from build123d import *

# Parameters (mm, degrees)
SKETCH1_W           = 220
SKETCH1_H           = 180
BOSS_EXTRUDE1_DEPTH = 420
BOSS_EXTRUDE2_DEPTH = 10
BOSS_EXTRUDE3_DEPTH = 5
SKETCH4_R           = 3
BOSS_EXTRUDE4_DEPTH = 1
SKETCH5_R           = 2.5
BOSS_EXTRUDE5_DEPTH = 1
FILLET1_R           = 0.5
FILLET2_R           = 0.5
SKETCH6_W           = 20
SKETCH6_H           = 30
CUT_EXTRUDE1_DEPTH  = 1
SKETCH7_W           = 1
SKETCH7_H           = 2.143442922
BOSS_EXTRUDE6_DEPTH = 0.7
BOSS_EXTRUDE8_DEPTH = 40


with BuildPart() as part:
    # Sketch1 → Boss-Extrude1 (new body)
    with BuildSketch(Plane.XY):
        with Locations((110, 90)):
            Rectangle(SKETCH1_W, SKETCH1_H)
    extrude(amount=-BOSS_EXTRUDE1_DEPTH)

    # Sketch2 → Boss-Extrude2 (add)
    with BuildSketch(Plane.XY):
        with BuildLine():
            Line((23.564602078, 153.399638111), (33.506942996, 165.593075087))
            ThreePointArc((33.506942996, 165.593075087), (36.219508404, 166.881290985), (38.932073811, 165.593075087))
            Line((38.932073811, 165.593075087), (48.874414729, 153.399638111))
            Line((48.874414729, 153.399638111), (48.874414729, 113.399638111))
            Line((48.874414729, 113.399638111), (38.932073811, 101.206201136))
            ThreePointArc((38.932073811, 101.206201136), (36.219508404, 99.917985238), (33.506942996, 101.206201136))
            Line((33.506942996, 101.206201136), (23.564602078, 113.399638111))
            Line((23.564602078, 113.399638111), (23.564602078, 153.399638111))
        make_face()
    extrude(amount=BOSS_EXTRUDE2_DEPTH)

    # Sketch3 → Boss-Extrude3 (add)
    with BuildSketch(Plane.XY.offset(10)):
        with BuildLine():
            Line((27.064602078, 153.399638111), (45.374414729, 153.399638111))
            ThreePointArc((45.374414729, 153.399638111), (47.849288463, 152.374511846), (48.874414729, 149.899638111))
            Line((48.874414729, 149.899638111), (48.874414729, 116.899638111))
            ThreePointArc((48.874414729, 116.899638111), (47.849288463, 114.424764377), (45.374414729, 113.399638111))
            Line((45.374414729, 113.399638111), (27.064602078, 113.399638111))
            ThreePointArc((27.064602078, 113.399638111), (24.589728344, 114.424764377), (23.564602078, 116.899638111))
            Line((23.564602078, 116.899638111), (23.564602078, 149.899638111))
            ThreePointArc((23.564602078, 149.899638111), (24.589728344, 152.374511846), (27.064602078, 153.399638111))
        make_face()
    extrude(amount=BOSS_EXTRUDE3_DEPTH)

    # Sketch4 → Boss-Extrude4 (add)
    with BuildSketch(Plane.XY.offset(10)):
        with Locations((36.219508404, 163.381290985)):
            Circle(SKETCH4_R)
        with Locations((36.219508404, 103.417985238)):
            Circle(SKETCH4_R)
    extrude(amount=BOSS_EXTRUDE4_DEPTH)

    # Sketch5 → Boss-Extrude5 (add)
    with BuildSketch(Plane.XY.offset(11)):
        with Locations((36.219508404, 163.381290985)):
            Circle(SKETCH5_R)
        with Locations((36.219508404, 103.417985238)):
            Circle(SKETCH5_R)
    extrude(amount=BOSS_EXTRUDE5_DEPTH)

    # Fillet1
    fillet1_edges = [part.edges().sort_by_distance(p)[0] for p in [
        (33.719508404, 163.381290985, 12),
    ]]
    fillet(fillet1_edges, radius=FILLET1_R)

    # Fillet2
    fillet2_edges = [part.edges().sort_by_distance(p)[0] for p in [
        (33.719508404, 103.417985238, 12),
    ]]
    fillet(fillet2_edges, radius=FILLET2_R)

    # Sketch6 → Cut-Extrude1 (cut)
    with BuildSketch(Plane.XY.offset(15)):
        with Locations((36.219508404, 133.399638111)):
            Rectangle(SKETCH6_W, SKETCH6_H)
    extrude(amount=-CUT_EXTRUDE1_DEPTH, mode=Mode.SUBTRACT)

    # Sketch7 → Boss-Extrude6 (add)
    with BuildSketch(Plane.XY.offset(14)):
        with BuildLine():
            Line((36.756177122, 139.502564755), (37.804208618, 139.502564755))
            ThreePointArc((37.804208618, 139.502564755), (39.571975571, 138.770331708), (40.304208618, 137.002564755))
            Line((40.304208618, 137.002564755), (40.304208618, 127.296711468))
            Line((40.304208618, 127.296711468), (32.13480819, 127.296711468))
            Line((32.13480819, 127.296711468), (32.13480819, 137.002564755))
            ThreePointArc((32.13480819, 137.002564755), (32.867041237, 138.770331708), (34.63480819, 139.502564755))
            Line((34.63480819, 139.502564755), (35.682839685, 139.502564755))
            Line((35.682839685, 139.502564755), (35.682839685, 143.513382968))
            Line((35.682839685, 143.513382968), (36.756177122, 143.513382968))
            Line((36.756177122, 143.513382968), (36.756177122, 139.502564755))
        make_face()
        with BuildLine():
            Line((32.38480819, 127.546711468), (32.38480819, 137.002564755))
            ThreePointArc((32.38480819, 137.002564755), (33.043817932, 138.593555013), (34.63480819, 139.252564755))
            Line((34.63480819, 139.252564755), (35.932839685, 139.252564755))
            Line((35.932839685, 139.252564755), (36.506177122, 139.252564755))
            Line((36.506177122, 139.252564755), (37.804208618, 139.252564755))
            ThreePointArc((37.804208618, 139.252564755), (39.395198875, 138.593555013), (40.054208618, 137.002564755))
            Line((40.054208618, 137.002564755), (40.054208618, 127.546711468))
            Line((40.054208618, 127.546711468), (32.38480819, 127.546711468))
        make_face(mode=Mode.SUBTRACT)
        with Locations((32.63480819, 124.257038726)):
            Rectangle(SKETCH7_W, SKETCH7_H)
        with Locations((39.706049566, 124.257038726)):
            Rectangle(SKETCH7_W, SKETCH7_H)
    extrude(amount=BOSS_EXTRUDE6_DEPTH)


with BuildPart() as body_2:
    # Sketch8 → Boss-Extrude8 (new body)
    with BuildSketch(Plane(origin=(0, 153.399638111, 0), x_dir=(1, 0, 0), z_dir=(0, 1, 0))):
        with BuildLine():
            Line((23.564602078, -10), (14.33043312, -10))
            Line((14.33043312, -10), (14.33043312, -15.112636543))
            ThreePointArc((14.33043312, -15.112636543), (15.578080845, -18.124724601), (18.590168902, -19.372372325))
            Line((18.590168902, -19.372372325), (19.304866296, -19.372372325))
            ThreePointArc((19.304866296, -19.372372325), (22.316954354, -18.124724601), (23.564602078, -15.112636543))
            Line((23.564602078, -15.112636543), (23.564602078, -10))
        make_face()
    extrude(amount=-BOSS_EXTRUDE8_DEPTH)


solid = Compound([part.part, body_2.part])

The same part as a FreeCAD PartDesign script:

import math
import FreeCAD as App
import Part
import Sketcher
from FreeCAD import Vector
Q = App.Units.Quantity


def edges_at(feature, points):
    """Names of the edges that pass closest to the given points."""
    edges = feature.Shape.Edges
    near = lambda p: min(range(len(edges)), key=lambda i: edges[i].distToShape(Part.Vertex(*p))[0])
    return sorted({f"Edge{near(p) + 1}" for p in points})

doc = App.newDocument("Part")
params = doc.addObject("Spreadsheet::Sheet", "Params")
for row, (alias, value) in enumerate([
    ("sketch1_width", "220 mm"),
    ("sketch1_height", "180 mm"),
    ("pad1_length", "420 mm"),
    ("sketch2_radius", "3.5 mm"),
    ("sketch2_height", "40 mm"),
    ("pad2_length", "10 mm"),
    ("sketch3_radius", "3.5 mm"),
    ("sketch3_height", "33 mm"),
    ("pad3_length", "5 mm"),
    ("sketch4_diameter", "6 mm"),
    ("pad4_length", "1 mm"),
    ("sketch5_diameter", "5 mm"),
    ("pad5_length", "1 mm"),
    ("fillet_radius", "0.5 mm"),
    ("fillet2_radius", "0.5 mm"),
    ("sketch6_width", "20 mm"),
    ("sketch6_height", "30 mm"),
    ("pocket1_length", "1 mm"),
    ("sketch7_radius", "2.5 mm"),
    ("sketch7_width", "1 mm"),
    ("sketch7_radius2", "2.25 mm"),
    ("pad6_length", "0.7 mm"),
    ("pad7_length", "40 mm"),
], start=1):
    params.set(f"A{row}", alias)
    params.set(f"B{row}", "=" + value)
    params.setAlias(f"B{row}", alias)

body = doc.addObject("PartDesign::Body", "Body")

sketch1 = body.newObject("Sketcher::SketchObject", "Sketch")
sketch1.AttachmentSupport = (doc.getObject("XY_Plane"), [""])
sketch1.MapMode = "FlatFace"
sketch1.addGeometry(Part.LineSegment(Vector(0, 180, 0), Vector(0, 0, 0)), False)
sketch1.addGeometry(Part.LineSegment(Vector(0, 0, 0), Vector(220, 0, 0)), False)
sketch1.addGeometry(Part.LineSegment(Vector(220, 0, 0), Vector(220, 180, 0)), False)
sketch1.addGeometry(Part.LineSegment(Vector(220, 180, 0), Vector(0, 180, 0)), False)
sketch1.addConstraint(Sketcher.Constraint("Coincident", 0, 2, 1, 1))
sketch1.addConstraint(Sketcher.Constraint("Coincident", 1, 2, 2, 1))
sketch1.addConstraint(Sketcher.Constraint("Coincident", 2, 2, 3, 1))
sketch1.addConstraint(Sketcher.Constraint("Coincident", 3, 2, 0, 1))
sketch1.addConstraint(Sketcher.Constraint("Vertical", 0))
sketch1.addConstraint(Sketcher.Constraint("Horizontal", 1))
sketch1.addConstraint(Sketcher.Constraint("Vertical", 2))
sketch1.addConstraint(Sketcher.Constraint("Horizontal", 3))
sketch1.addConstraint(Sketcher.Constraint("Coincident", 0, 2, -1, 1))
sketch1.addConstraint(Sketcher.Constraint("DistanceX", 1, 1, 1, 2, Q("220 mm")))
sketch1.addConstraint(Sketcher.Constraint("DistanceY", 0, 2, 0, 1, Q("180 mm")))
sketch1.setExpression("Constraints[9]", "Params.sketch1_width")
sketch1.setExpression("Constraints[10]", "Params.sketch1_height")
pad1 = body.newObject("PartDesign::Pad", "Pad")
pad1.Profile = sketch1
pad1.setExpression("Length", "Params.pad1_length")
pad1.Reversed = True

sketch2 = body.newObject("Sketcher::SketchObject", "Sketch001")
sketch2.AttachmentSupport = (doc.getObject("XY_Plane"), [""])
sketch2.MapMode = "FlatFace"
sketch2.addGeometry(Part.LineSegment(Vector(33.506943, 165.593075, 0), Vector(23.564602, 153.399638, 0)), False)
sketch2.addGeometry(Part.LineSegment(Vector(23.564602, 153.399638, 0), Vector(23.564602, 113.399638, 0)), False)
sketch2.addGeometry(Part.LineSegment(Vector(23.564602, 113.399638, 0), Vector(33.506943, 101.206201, 0)), False)
sketch2.addGeometry(Part.ArcOfCircle(Part.Circle(Vector(36.219508, 103.417985, 0), Vector(0, 0, 1), 3.5), math.radians(-140.806727), math.radians(-39.193273)), False)
sketch2.addGeometry(Part.LineSegment(Vector(38.932074, 101.206201, 0), Vector(48.874415, 113.399638, 0)), False)
sketch2.addGeometry(Part.LineSegment(Vector(48.874415, 113.399638, 0), Vector(48.874415, 153.399638, 0)), False)
sketch2.addGeometry(Part.LineSegment(Vector(48.874415, 153.399638, 0), Vector(38.932074, 165.593075, 0)), False)
sketch2.addGeometry(Part.ArcOfCircle(Part.Circle(Vector(36.219508, 163.381291, 0), Vector(0, 0, 1), 3.5), math.radians(39.193273), math.radians(140.806727)), False)
sketch2.addConstraint(Sketcher.Constraint("Coincident", 0, 2, 1, 1))
sketch2.addConstraint(Sketcher.Constraint("Coincident", 1, 2, 2, 1))
sketch2.addConstraint(Sketcher.Constraint("Tangent", 2, 2, 3, 1))
sketch2.addConstraint(Sketcher.Constraint("Tangent", 3, 2, 4, 1))
sketch2.addConstraint(Sketcher.Constraint("Coincident", 4, 2, 5, 1))
sketch2.addConstraint(Sketcher.Constraint("Coincident", 5, 2, 6, 1))
sketch2.addConstraint(Sketcher.Constraint("Tangent", 6, 2, 7, 1))
sketch2.addConstraint(Sketcher.Constraint("Tangent", 7, 2, 0, 1))
sketch2.addConstraint(Sketcher.Constraint("Vertical", 1))
sketch2.addConstraint(Sketcher.Constraint("Vertical", 5))
sketch2.addConstraint(Sketcher.Constraint("Equal", 3, 7))
sketch2.addConstraint(Sketcher.Constraint("Parallel", 0, 4))
sketch2.addConstraint(Sketcher.Constraint("Parallel", 2, 6))
sketch2.addConstraint(Sketcher.Constraint("Horizontal", 2, 2, 3, 2))
sketch2.addConstraint(Sketcher.Constraint("Horizontal", 1, 2, 4, 2))
sketch2.addConstraint(Sketcher.Constraint("Horizontal", 0, 2, 5, 2))
sketch2.addConstraint(Sketcher.Constraint("Radius", 3, Q("3.5 mm")))
sketch2.addConstraint(Sketcher.Constraint("DistanceY", 1, 2, 1, 1, Q("40 mm")))
sketch2.addConstraint(Sketcher.Constraint("DistanceY", -1, 1, 2, 2, Q("101.206201 mm")))
sketch2.addConstraint(Sketcher.Constraint("DistanceX", -1, 1, 3, 3, Q("36.219508 mm")))
sketch2.addConstraint(Sketcher.Constraint("DistanceY", -1, 1, 7, 3, Q("163.381291 mm")))
sketch2.addConstraint(Sketcher.Constraint("DistanceY", -1, 1, 0, 2, Q("153.399638 mm")))
sketch2.setExpression("Constraints[16]", "Params.sketch2_radius")
sketch2.setExpression("Constraints[17]", "Params.sketch2_height")
pad2 = body.newObject("PartDesign::Pad", "Pad001")
pad2.Profile = sketch2
pad2.setExpression("Length", "Params.pad2_length")

sketch3 = body.newObject("Sketcher::SketchObject", "Sketch002")
sketch3.AttachmentSupport = (doc.getObject("XY_Plane"), [""])
sketch3.MapMode = "FlatFace"
sketch3.AttachmentOffset = App.Placement(Vector(0, 0, 10), App.Rotation())
sketch3.addGeometry(Part.LineSegment(Vector(45.374415, 153.399638, 0), Vector(27.064602, 153.399638, 0)), False)
sketch3.addGeometry(Part.ArcOfCircle(Part.Circle(Vector(27.064602, 149.899638, 0), Vector(0, 0, 1), 3.5), math.radians(90), math.radians(180)), False)
sketch3.addGeometry(Part.LineSegment(Vector(23.564602, 149.899638, 0), Vector(23.564602, 116.899638, 0)), False)
sketch3.addGeometry(Part.ArcOfCircle(Part.Circle(Vector(27.064602, 116.899638, 0), Vector(0, 0, 1), 3.5), math.radians(-180), math.radians(-90)), False)
sketch3.addGeometry(Part.LineSegment(Vector(27.064602, 113.399638, 0), Vector(45.374415, 113.399638, 0)), False)
sketch3.addGeometry(Part.ArcOfCircle(Part.Circle(Vector(45.374415, 116.899638, 0), Vector(0, 0, 1), 3.5), math.radians(-90), math.radians(0)), False)
sketch3.addGeometry(Part.LineSegment(Vector(48.874415, 116.899638, 0), Vector(48.874415, 149.899638, 0)), False)
sketch3.addGeometry(Part.ArcOfCircle(Part.Circle(Vector(45.374415, 149.899638, 0), Vector(0, 0, 1), 3.5), math.radians(0), math.radians(90)), False)
sketch3.addConstraint(Sketcher.Constraint("Tangent", 0, 2, 1, 1))
sketch3.addConstraint(Sketcher.Constraint("Tangent", 1, 2, 2, 1))
sketch3.addConstraint(Sketcher.Constraint("Tangent", 2, 2, 3, 1))
sketch3.addConstraint(Sketcher.Constraint("Tangent", 3, 2, 4, 1))
sketch3.addConstraint(Sketcher.Constraint("Tangent", 4, 2, 5, 1))
sketch3.addConstraint(Sketcher.Constraint("Tangent", 5, 2, 6, 1))
sketch3.addConstraint(Sketcher.Constraint("Tangent", 6, 2, 7, 1))
sketch3.addConstraint(Sketcher.Constraint("Tangent", 7, 2, 0, 1))
sketch3.addConstraint(Sketcher.Constraint("Horizontal", 0))
sketch3.addConstraint(Sketcher.Constraint("Vertical", 2))
sketch3.addConstraint(Sketcher.Constraint("Horizontal", 4))
sketch3.addConstraint(Sketcher.Constraint("Vertical", 6))
sketch3.addConstraint(Sketcher.Constraint("Equal", 1, 3))
sketch3.addConstraint(Sketcher.Constraint("Equal", 3, 5))
sketch3.addConstraint(Sketcher.Constraint("Equal", 5, 7))
sketch3.addConstraint(Sketcher.Constraint("Radius", 1, Q("3.5 mm")))
sketch3.addConstraint(Sketcher.Constraint("DistanceY", 2, 2, 2, 1, Q("33 mm")))
sketch3.addConstraint(Sketcher.Constraint("DistanceX", 0, 2, 0, 1, Q("18.309813 mm")))
sketch3.addConstraint(Sketcher.Constraint("DistanceY", -1, 1, 1, 3, Q("149.899638 mm")))
sketch3.addConstraint(Sketcher.Constraint("DistanceX", -1, 1, 1, 3, Q("27.064602 mm")))
sketch3.setExpression("Constraints[15]", "Params.sketch3_radius")
sketch3.setExpression("Constraints[16]", "Params.sketch3_height")
pad3 = body.newObject("PartDesign::Pad", "Pad002")
pad3.Profile = sketch3
pad3.setExpression("Length", "Params.pad3_length")

sketch4 = body.newObject("Sketcher::SketchObject", "Sketch003")
sketch4.AttachmentSupport = (doc.getObject("XY_Plane"), [""])
sketch4.MapMode = "FlatFace"
sketch4.AttachmentOffset = App.Placement(Vector(0, 0, 10), App.Rotation())
sketch4.addGeometry(Part.Circle(Vector(36.219508, 163.381291, 0), Vector(0, 0, 1), 3), False)
sketch4.addGeometry(Part.Circle(Vector(36.219508, 103.417985, 0), Vector(0, 0, 1), 3), False)
sketch4.addConstraint(Sketcher.Constraint("Equal", 0, 1))
sketch4.addConstraint(Sketcher.Constraint("Vertical", 0, 3, 1, 3))
sketch4.addConstraint(Sketcher.Constraint("Diameter", 0, Q("6 mm")))
sketch4.addConstraint(Sketcher.Constraint("DistanceX", -1, 1, 0, 3, Q("36.219508 mm")))
sketch4.addConstraint(Sketcher.Constraint("DistanceY", -1, 1, 0, 3, Q("163.381291 mm")))
sketch4.addConstraint(Sketcher.Constraint("DistanceY", -1, 1, 1, 3, Q("103.417985 mm")))
sketch4.setExpression("Constraints[2]", "Params.sketch4_diameter")
pad4 = body.newObject("PartDesign::Pad", "Pad003")
pad4.Profile = sketch4
pad4.setExpression("Length", "Params.pad4_length")

sketch5 = body.newObject("Sketcher::SketchObject", "Sketch004")
sketch5.AttachmentSupport = (doc.getObject("XY_Plane"), [""])
sketch5.MapMode = "FlatFace"
sketch5.AttachmentOffset = App.Placement(Vector(0, 0, 11), App.Rotation())
sketch5.addGeometry(Part.Circle(Vector(36.219508, 163.381291, 0), Vector(0, 0, 1), 2.5), False)
sketch5.addGeometry(Part.Circle(Vector(36.219508, 103.417985, 0), Vector(0, 0, 1), 2.5), False)
sketch5.addConstraint(Sketcher.Constraint("Equal", 0, 1))
sketch5.addConstraint(Sketcher.Constraint("Vertical", 0, 3, 1, 3))
sketch5.addConstraint(Sketcher.Constraint("Diameter", 0, Q("5 mm")))
sketch5.addConstraint(Sketcher.Constraint("DistanceX", -1, 1, 0, 3, Q("36.219508 mm")))
sketch5.addConstraint(Sketcher.Constraint("DistanceY", -1, 1, 0, 3, Q("163.381291 mm")))
sketch5.addConstraint(Sketcher.Constraint("DistanceY", -1, 1, 1, 3, Q("103.417985 mm")))
sketch5.setExpression("Constraints[2]", "Params.sketch5_diameter")
pad5 = body.newObject("PartDesign::Pad", "Pad004")
pad5.Profile = sketch5
pad5.setExpression("Length", "Params.pad5_length")
doc.recompute()

fillet = body.newObject("PartDesign::Fillet", "Fillet")
fillet.Base = (pad5, edges_at(pad5, [(33.72, 163.381, 12)]))
fillet.setExpression("Radius", "Params.fillet_radius")
doc.recompute()

fillet2 = body.newObject("PartDesign::Fillet", "Fillet001")
fillet2.Base = (fillet, edges_at(fillet, [(33.72, 103.418, 12)]))
fillet2.setExpression("Radius", "Params.fillet2_radius")

sketch6 = body.newObject("Sketcher::SketchObject", "Sketch005")
sketch6.AttachmentSupport = (doc.getObject("XY_Plane"), [""])
sketch6.MapMode = "FlatFace"
sketch6.AttachmentOffset = App.Placement(Vector(0, 0, 15), App.Rotation())
sketch6.addGeometry(Part.LineSegment(Vector(26.219508, 148.399638, 0), Vector(26.219508, 118.399638, 0)), False)
sketch6.addGeometry(Part.LineSegment(Vector(26.219508, 118.399638, 0), Vector(46.219508, 118.399638, 0)), False)
sketch6.addGeometry(Part.LineSegment(Vector(46.219508, 118.399638, 0), Vector(46.219508, 148.399638, 0)), False)
sketch6.addGeometry(Part.LineSegment(Vector(46.219508, 148.399638, 0), Vector(26.219508, 148.399638, 0)), False)
sketch6.addConstraint(Sketcher.Constraint("Coincident", 0, 2, 1, 1))
sketch6.addConstraint(Sketcher.Constraint("Coincident", 1, 2, 2, 1))
sketch6.addConstraint(Sketcher.Constraint("Coincident", 2, 2, 3, 1))
sketch6.addConstraint(Sketcher.Constraint("Coincident", 3, 2, 0, 1))
sketch6.addConstraint(Sketcher.Constraint("Vertical", 0))
sketch6.addConstraint(Sketcher.Constraint("Horizontal", 1))
sketch6.addConstraint(Sketcher.Constraint("Vertical", 2))
sketch6.addConstraint(Sketcher.Constraint("Horizontal", 3))
sketch6.addConstraint(Sketcher.Constraint("DistanceX", 1, 1, 1, 2, Q("20 mm")))
sketch6.addConstraint(Sketcher.Constraint("DistanceY", 0, 2, 0, 1, Q("30 mm")))
sketch6.addConstraint(Sketcher.Constraint("DistanceX", -1, 1, 0, 2, Q("26.219508 mm")))
sketch6.addConstraint(Sketcher.Constraint("DistanceY", -1, 1, 0, 2, Q("118.399638 mm")))
sketch6.setExpression("Constraints[8]", "Params.sketch6_width")
sketch6.setExpression("Constraints[9]", "Params.sketch6_height")
pocket1 = body.newObject("PartDesign::Pocket", "Pocket")
pocket1.Profile = sketch6
pocket1.setExpression("Length", "Params.pocket1_length")

sketch7 = body.newObject("Sketcher::SketchObject", "Sketch006")
sketch7.AttachmentSupport = (doc.getObject("XY_Plane"), [""])
sketch7.MapMode = "FlatFace"
sketch7.AttachmentOffset = App.Placement(Vector(0, 0, 14), App.Rotation())
sketch7.addGeometry(Part.LineSegment(Vector(37.804209, 139.502565, 0), Vector(36.756177, 139.502565, 0)), False)
sketch7.addGeometry(Part.LineSegment(Vector(36.756177, 139.502565, 0), Vector(36.756177, 143.513383, 0)), False)
sketch7.addGeometry(Part.LineSegment(Vector(36.756177, 143.513383, 0), Vector(35.68284, 143.513383, 0)), False)
sketch7.addGeometry(Part.LineSegment(Vector(35.68284, 143.513383, 0), Vector(35.68284, 139.502565, 0)), False)
sketch7.addGeometry(Part.LineSegment(Vector(35.68284, 139.502565, 0), Vector(34.634808, 139.502565, 0)), False)
sketch7.addGeometry(Part.ArcOfCircle(Part.Circle(Vector(34.634808, 137.002565, 0), Vector(0, 0, 1), 2.5), math.radians(90), math.radians(180)), False)
sketch7.addGeometry(Part.LineSegment(Vector(32.134808, 137.002565, 0), Vector(32.134808, 127.296711, 0)), False)
sketch7.addGeometry(Part.LineSegment(Vector(32.134808, 127.296711, 0), Vector(40.304209, 127.296711, 0)), False)
sketch7.addGeometry(Part.LineSegment(Vector(40.304209, 127.296711, 0), Vector(40.304209, 137.002565, 0)), False)
sketch7.addGeometry(Part.ArcOfCircle(Part.Circle(Vector(37.804209, 137.002565, 0), Vector(0, 0, 1), 2.5), math.radians(0), math.radians(90)), False)
sketch7.addGeometry(Part.LineSegment(Vector(32.384808, 127.546711, 0), Vector(32.384808, 137.002565, 0)), False)
sketch7.addGeometry(Part.ArcOfCircle(Part.Circle(Vector(34.634808, 137.002565, 0), Vector(0, 0, 1), 2.25), math.radians(90), math.radians(180)), False)
sketch7.addGeometry(Part.LineSegment(Vector(34.634808, 139.252565, 0), Vector(37.804209, 139.252565, 0)), False)
sketch7.addGeometry(Part.ArcOfCircle(Part.Circle(Vector(37.804209, 137.002565, 0), Vector(0, 0, 1), 2.25), math.radians(0), math.radians(90)), False)
sketch7.addGeometry(Part.LineSegment(Vector(40.054209, 137.002565, 0), Vector(40.054209, 127.546711, 0)), False)
sketch7.addGeometry(Part.LineSegment(Vector(40.054209, 127.546711, 0), Vector(32.384808, 127.546711, 0)), False)
sketch7.addGeometry(Part.LineSegment(Vector(32.134808, 125.32876, 0), Vector(32.134808, 123.185317, 0)), False)
sketch7.addGeometry(Part.LineSegment(Vector(32.134808, 123.185317, 0), Vector(33.134808, 123.185317, 0)), False)
sketch7.addGeometry(Part.LineSegment(Vector(33.134808, 123.185317, 0), Vector(33.134808, 125.32876, 0)), False)
sketch7.addGeometry(Part.LineSegment(Vector(33.134808, 125.32876, 0), Vector(32.134808, 125.32876, 0)), False)
sketch7.addGeometry(Part.LineSegment(Vector(39.20605, 125.32876, 0), Vector(39.20605, 123.185317, 0)), False)
sketch7.addGeometry(Part.LineSegment(Vector(39.20605, 123.185317, 0), Vector(40.20605, 123.185317, 0)), False)
sketch7.addGeometry(Part.LineSegment(Vector(40.20605, 123.185317, 0), Vector(40.20605, 125.32876, 0)), False)
sketch7.addGeometry(Part.LineSegment(Vector(40.20605, 125.32876, 0), Vector(39.20605, 125.32876, 0)), False)
sketch7.addConstraint(Sketcher.Constraint("Coincident", 0, 2, 1, 1))
sketch7.addConstraint(Sketcher.Constraint("Coincident", 1, 2, 2, 1))
sketch7.addConstraint(Sketcher.Constraint("Coincident", 2, 2, 3, 1))
sketch7.addConstraint(Sketcher.Constraint("Coincident", 3, 2, 4, 1))
sketch7.addConstraint(Sketcher.Constraint("Tangent", 4, 2, 5, 1))
sketch7.addConstraint(Sketcher.Constraint("Tangent", 5, 2, 6, 1))
sketch7.addConstraint(Sketcher.Constraint("Coincident", 6, 2, 7, 1))
sketch7.addConstraint(Sketcher.Constraint("Coincident", 7, 2, 8, 1))
sketch7.addConstraint(Sketcher.Constraint("Tangent", 8, 2, 9, 1))
sketch7.addConstraint(Sketcher.Constraint("Tangent", 9, 2, 0, 1))
sketch7.addConstraint(Sketcher.Constraint("Tangent", 10, 2, 11, 2))
sketch7.addConstraint(Sketcher.Constraint("Tangent", 11, 1, 12, 1))
sketch7.addConstraint(Sketcher.Constraint("Tangent", 12, 2, 13, 2))
sketch7.addConstraint(Sketcher.Constraint("Tangent", 13, 1, 14, 1))
sketch7.addConstraint(Sketcher.Constraint("Coincident", 14, 2, 15, 1))
sketch7.addConstraint(Sketcher.Constraint("Coincident", 15, 2, 10, 1))
sketch7.addConstraint(Sketcher.Constraint("Coincident", 16, 2, 17, 1))
sketch7.addConstraint(Sketcher.Constraint("Coincident", 17, 2, 18, 1))
sketch7.addConstraint(Sketcher.Constraint("Coincident", 18, 2, 19, 1))
sketch7.addConstraint(Sketcher.Constraint("Coincident", 19, 2, 16, 1))
sketch7.addConstraint(Sketcher.Constraint("Coincident", 20, 2, 21, 1))
sketch7.addConstraint(Sketcher.Constraint("Coincident", 21, 2, 22, 1))
sketch7.addConstraint(Sketcher.Constraint("Coincident", 22, 2, 23, 1))
sketch7.addConstraint(Sketcher.Constraint("Coincident", 23, 2, 20, 1))
sketch7.addConstraint(Sketcher.Constraint("Horizontal", 0))
sketch7.addConstraint(Sketcher.Constraint("Vertical", 1))
sketch7.addConstraint(Sketcher.Constraint("Horizontal", 2))
sketch7.addConstraint(Sketcher.Constraint("Vertical", 3))
sketch7.addConstraint(Sketcher.Constraint("Horizontal", 4))
sketch7.addConstraint(Sketcher.Constraint("Vertical", 6))
sketch7.addConstraint(Sketcher.Constraint("Horizontal", 7))
sketch7.addConstraint(Sketcher.Constraint("Vertical", 8))
sketch7.addConstraint(Sketcher.Constraint("Vertical", 10))
sketch7.addConstraint(Sketcher.Constraint("Horizontal", 12))
sketch7.addConstraint(Sketcher.Constraint("Vertical", 14))
sketch7.addConstraint(Sketcher.Constraint("Horizontal", 15))
sketch7.addConstraint(Sketcher.Constraint("Vertical", 16))
sketch7.addConstraint(Sketcher.Constraint("Horizontal", 17))
sketch7.addConstraint(Sketcher.Constraint("Vertical", 18))
sketch7.addConstraint(Sketcher.Constraint("Horizontal", 19))
sketch7.addConstraint(Sketcher.Constraint("Vertical", 20))
sketch7.addConstraint(Sketcher.Constraint("Horizontal", 21))
sketch7.addConstraint(Sketcher.Constraint("Vertical", 22))
sketch7.addConstraint(Sketcher.Constraint("Horizontal", 23))
sketch7.addConstraint(Sketcher.Constraint("Coincident", 11, 3, 5, 3))
sketch7.addConstraint(Sketcher.Constraint("Coincident", 13, 3, 9, 3))
sketch7.addConstraint(Sketcher.Constraint("Equal", 5, 9))
sketch7.addConstraint(Sketcher.Constraint("Equal", 11, 13))
sketch7.addConstraint(Sketcher.Constraint("Horizontal", 17, 2, 20, 2))
sketch7.addConstraint(Sketcher.Constraint("Horizontal", 19, 2, 22, 2))
sketch7.addConstraint(Sketcher.Constraint("Vertical", 6, 2, 16, 2))
sketch7.addConstraint(Sketcher.Constraint("Equal", 0, 4))
sketch7.addConstraint(Sketcher.Constraint("Equal", 19, 21))
sketch7.addConstraint(Sketcher.Constraint("Radius", 5, Q("2.5 mm")))
sketch7.addConstraint(Sketcher.Constraint("DistanceX", 17, 1, 17, 2, Q("1 mm")))
sketch7.addConstraint(Sketcher.Constraint("Radius", 11, Q("2.25 mm")))
sketch7.addConstraint(Sketcher.Constraint("DistanceY", 7, 2, 14, 2, Q("0.25 mm")))
sketch7.addConstraint(Sketcher.Constraint("DistanceX", 7, 1, 7, 2, Q("8.1694 mm")))
sketch7.addConstraint(Sketcher.Constraint("DistanceX", 0, 2, 0, 1, Q("1.048031 mm")))
sketch7.addConstraint(Sketcher.Constraint("DistanceY", 1, 1, 1, 2, Q("4.010818 mm")))
sketch7.addConstraint(Sketcher.Constraint("DistanceY", 6, 2, 6, 1, Q("9.705853 mm")))
sketch7.addConstraint(Sketcher.Constraint("DistanceY", 16, 2, 16, 1, Q("2.143443 mm")))
sketch7.addConstraint(Sketcher.Constraint("DistanceX", -1, 1, 5, 3, Q("34.634808 mm")))
sketch7.addConstraint(Sketcher.Constraint("DistanceY", -1, 1, 6, 2, Q("127.296711 mm")))
sketch7.addConstraint(Sketcher.Constraint("DistanceY", -1, 1, 18, 2, Q("125.32876 mm")))
sketch7.addConstraint(Sketcher.Constraint("DistanceX", -1, 1, 20, 2, Q("39.20605 mm")))
sketch7.setExpression("Constraints[53]", "Params.sketch7_radius")
sketch7.setExpression("Constraints[54]", "Params.sketch7_width")
sketch7.setExpression("Constraints[55]", "Params.sketch7_radius2")
pad6 = body.newObject("PartDesign::Pad", "Pad005")
pad6.Profile = sketch7
pad6.setExpression("Length", "Params.pad6_length")
body2 = doc.addObject("PartDesign::Body", "Body001")

sketch8 = body2.newObject("Sketcher::SketchObject", "Sketch007")
sketch8.AttachmentSupport = (doc.getObject("XZ_Plane001"), [""])
sketch8.MapMode = "FlatFace"
sketch8.AttachmentOffset = App.Placement(Vector(0, 0, -153.399638), App.Rotation())
sketch8.addGeometry(Part.LineSegment(Vector(23.564602, 10, 0), Vector(14.330433, 10, 0)), False)
sketch8.addGeometry(Part.LineSegment(Vector(14.330433, 10, 0), Vector(14.330433, 15.112637, 0)), False)
sketch8.addGeometry(Part.ArcOfCircle(Part.Circle(Vector(18.590169, 15.112637, 0), Vector(0, 0, 1), 4.259736), math.radians(90), math.radians(180)), False)
sketch8.addGeometry(Part.LineSegment(Vector(18.590169, 19.372372, 0), Vector(19.304866, 19.372372, 0)), False)
sketch8.addGeometry(Part.ArcOfCircle(Part.Circle(Vector(19.304866, 15.112637, 0), Vector(0, 0, 1), 4.259736), math.radians(0), math.radians(90)), False)
sketch8.addGeometry(Part.LineSegment(Vector(23.564602, 15.112637, 0), Vector(23.564602, 10, 0)), False)
sketch8.addConstraint(Sketcher.Constraint("Coincident", 0, 2, 1, 1))
sketch8.addConstraint(Sketcher.Constraint("Tangent", 1, 2, 2, 2))
sketch8.addConstraint(Sketcher.Constraint("Tangent", 2, 1, 3, 1))
sketch8.addConstraint(Sketcher.Constraint("Tangent", 3, 2, 4, 2))
sketch8.addConstraint(Sketcher.Constraint("Tangent", 4, 1, 5, 1))
sketch8.addConstraint(Sketcher.Constraint("Coincident", 5, 2, 0, 1))
sketch8.addConstraint(Sketcher.Constraint("Horizontal", 0))
sketch8.addConstraint(Sketcher.Constraint("Vertical", 1))
sketch8.addConstraint(Sketcher.Constraint("Horizontal", 3))
sketch8.addConstraint(Sketcher.Constraint("Vertical", 5))
sketch8.addConstraint(Sketcher.Constraint("Equal", 2, 4))
sketch8.addConstraint(Sketcher.Constraint("DistanceY", -1, 1, 0, 2, Q("10 mm")))
sketch8.addConstraint(Sketcher.Constraint("Radius", 2, Q("4.259736 mm")))
sketch8.addConstraint(Sketcher.Constraint("DistanceX", 0, 2, 0, 1, Q("9.234169 mm")))
sketch8.addConstraint(Sketcher.Constraint("DistanceY", 1, 1, 1, 2, Q("5.112637 mm")))
sketch8.addConstraint(Sketcher.Constraint("DistanceX", -1, 1, 2, 3, Q("18.590169 mm")))
pad7 = body2.newObject("PartDesign::Pad", "Pad006")
pad7.Profile = sketch8
pad7.setExpression("Length", "Params.pad7_length")

doc.recompute()
